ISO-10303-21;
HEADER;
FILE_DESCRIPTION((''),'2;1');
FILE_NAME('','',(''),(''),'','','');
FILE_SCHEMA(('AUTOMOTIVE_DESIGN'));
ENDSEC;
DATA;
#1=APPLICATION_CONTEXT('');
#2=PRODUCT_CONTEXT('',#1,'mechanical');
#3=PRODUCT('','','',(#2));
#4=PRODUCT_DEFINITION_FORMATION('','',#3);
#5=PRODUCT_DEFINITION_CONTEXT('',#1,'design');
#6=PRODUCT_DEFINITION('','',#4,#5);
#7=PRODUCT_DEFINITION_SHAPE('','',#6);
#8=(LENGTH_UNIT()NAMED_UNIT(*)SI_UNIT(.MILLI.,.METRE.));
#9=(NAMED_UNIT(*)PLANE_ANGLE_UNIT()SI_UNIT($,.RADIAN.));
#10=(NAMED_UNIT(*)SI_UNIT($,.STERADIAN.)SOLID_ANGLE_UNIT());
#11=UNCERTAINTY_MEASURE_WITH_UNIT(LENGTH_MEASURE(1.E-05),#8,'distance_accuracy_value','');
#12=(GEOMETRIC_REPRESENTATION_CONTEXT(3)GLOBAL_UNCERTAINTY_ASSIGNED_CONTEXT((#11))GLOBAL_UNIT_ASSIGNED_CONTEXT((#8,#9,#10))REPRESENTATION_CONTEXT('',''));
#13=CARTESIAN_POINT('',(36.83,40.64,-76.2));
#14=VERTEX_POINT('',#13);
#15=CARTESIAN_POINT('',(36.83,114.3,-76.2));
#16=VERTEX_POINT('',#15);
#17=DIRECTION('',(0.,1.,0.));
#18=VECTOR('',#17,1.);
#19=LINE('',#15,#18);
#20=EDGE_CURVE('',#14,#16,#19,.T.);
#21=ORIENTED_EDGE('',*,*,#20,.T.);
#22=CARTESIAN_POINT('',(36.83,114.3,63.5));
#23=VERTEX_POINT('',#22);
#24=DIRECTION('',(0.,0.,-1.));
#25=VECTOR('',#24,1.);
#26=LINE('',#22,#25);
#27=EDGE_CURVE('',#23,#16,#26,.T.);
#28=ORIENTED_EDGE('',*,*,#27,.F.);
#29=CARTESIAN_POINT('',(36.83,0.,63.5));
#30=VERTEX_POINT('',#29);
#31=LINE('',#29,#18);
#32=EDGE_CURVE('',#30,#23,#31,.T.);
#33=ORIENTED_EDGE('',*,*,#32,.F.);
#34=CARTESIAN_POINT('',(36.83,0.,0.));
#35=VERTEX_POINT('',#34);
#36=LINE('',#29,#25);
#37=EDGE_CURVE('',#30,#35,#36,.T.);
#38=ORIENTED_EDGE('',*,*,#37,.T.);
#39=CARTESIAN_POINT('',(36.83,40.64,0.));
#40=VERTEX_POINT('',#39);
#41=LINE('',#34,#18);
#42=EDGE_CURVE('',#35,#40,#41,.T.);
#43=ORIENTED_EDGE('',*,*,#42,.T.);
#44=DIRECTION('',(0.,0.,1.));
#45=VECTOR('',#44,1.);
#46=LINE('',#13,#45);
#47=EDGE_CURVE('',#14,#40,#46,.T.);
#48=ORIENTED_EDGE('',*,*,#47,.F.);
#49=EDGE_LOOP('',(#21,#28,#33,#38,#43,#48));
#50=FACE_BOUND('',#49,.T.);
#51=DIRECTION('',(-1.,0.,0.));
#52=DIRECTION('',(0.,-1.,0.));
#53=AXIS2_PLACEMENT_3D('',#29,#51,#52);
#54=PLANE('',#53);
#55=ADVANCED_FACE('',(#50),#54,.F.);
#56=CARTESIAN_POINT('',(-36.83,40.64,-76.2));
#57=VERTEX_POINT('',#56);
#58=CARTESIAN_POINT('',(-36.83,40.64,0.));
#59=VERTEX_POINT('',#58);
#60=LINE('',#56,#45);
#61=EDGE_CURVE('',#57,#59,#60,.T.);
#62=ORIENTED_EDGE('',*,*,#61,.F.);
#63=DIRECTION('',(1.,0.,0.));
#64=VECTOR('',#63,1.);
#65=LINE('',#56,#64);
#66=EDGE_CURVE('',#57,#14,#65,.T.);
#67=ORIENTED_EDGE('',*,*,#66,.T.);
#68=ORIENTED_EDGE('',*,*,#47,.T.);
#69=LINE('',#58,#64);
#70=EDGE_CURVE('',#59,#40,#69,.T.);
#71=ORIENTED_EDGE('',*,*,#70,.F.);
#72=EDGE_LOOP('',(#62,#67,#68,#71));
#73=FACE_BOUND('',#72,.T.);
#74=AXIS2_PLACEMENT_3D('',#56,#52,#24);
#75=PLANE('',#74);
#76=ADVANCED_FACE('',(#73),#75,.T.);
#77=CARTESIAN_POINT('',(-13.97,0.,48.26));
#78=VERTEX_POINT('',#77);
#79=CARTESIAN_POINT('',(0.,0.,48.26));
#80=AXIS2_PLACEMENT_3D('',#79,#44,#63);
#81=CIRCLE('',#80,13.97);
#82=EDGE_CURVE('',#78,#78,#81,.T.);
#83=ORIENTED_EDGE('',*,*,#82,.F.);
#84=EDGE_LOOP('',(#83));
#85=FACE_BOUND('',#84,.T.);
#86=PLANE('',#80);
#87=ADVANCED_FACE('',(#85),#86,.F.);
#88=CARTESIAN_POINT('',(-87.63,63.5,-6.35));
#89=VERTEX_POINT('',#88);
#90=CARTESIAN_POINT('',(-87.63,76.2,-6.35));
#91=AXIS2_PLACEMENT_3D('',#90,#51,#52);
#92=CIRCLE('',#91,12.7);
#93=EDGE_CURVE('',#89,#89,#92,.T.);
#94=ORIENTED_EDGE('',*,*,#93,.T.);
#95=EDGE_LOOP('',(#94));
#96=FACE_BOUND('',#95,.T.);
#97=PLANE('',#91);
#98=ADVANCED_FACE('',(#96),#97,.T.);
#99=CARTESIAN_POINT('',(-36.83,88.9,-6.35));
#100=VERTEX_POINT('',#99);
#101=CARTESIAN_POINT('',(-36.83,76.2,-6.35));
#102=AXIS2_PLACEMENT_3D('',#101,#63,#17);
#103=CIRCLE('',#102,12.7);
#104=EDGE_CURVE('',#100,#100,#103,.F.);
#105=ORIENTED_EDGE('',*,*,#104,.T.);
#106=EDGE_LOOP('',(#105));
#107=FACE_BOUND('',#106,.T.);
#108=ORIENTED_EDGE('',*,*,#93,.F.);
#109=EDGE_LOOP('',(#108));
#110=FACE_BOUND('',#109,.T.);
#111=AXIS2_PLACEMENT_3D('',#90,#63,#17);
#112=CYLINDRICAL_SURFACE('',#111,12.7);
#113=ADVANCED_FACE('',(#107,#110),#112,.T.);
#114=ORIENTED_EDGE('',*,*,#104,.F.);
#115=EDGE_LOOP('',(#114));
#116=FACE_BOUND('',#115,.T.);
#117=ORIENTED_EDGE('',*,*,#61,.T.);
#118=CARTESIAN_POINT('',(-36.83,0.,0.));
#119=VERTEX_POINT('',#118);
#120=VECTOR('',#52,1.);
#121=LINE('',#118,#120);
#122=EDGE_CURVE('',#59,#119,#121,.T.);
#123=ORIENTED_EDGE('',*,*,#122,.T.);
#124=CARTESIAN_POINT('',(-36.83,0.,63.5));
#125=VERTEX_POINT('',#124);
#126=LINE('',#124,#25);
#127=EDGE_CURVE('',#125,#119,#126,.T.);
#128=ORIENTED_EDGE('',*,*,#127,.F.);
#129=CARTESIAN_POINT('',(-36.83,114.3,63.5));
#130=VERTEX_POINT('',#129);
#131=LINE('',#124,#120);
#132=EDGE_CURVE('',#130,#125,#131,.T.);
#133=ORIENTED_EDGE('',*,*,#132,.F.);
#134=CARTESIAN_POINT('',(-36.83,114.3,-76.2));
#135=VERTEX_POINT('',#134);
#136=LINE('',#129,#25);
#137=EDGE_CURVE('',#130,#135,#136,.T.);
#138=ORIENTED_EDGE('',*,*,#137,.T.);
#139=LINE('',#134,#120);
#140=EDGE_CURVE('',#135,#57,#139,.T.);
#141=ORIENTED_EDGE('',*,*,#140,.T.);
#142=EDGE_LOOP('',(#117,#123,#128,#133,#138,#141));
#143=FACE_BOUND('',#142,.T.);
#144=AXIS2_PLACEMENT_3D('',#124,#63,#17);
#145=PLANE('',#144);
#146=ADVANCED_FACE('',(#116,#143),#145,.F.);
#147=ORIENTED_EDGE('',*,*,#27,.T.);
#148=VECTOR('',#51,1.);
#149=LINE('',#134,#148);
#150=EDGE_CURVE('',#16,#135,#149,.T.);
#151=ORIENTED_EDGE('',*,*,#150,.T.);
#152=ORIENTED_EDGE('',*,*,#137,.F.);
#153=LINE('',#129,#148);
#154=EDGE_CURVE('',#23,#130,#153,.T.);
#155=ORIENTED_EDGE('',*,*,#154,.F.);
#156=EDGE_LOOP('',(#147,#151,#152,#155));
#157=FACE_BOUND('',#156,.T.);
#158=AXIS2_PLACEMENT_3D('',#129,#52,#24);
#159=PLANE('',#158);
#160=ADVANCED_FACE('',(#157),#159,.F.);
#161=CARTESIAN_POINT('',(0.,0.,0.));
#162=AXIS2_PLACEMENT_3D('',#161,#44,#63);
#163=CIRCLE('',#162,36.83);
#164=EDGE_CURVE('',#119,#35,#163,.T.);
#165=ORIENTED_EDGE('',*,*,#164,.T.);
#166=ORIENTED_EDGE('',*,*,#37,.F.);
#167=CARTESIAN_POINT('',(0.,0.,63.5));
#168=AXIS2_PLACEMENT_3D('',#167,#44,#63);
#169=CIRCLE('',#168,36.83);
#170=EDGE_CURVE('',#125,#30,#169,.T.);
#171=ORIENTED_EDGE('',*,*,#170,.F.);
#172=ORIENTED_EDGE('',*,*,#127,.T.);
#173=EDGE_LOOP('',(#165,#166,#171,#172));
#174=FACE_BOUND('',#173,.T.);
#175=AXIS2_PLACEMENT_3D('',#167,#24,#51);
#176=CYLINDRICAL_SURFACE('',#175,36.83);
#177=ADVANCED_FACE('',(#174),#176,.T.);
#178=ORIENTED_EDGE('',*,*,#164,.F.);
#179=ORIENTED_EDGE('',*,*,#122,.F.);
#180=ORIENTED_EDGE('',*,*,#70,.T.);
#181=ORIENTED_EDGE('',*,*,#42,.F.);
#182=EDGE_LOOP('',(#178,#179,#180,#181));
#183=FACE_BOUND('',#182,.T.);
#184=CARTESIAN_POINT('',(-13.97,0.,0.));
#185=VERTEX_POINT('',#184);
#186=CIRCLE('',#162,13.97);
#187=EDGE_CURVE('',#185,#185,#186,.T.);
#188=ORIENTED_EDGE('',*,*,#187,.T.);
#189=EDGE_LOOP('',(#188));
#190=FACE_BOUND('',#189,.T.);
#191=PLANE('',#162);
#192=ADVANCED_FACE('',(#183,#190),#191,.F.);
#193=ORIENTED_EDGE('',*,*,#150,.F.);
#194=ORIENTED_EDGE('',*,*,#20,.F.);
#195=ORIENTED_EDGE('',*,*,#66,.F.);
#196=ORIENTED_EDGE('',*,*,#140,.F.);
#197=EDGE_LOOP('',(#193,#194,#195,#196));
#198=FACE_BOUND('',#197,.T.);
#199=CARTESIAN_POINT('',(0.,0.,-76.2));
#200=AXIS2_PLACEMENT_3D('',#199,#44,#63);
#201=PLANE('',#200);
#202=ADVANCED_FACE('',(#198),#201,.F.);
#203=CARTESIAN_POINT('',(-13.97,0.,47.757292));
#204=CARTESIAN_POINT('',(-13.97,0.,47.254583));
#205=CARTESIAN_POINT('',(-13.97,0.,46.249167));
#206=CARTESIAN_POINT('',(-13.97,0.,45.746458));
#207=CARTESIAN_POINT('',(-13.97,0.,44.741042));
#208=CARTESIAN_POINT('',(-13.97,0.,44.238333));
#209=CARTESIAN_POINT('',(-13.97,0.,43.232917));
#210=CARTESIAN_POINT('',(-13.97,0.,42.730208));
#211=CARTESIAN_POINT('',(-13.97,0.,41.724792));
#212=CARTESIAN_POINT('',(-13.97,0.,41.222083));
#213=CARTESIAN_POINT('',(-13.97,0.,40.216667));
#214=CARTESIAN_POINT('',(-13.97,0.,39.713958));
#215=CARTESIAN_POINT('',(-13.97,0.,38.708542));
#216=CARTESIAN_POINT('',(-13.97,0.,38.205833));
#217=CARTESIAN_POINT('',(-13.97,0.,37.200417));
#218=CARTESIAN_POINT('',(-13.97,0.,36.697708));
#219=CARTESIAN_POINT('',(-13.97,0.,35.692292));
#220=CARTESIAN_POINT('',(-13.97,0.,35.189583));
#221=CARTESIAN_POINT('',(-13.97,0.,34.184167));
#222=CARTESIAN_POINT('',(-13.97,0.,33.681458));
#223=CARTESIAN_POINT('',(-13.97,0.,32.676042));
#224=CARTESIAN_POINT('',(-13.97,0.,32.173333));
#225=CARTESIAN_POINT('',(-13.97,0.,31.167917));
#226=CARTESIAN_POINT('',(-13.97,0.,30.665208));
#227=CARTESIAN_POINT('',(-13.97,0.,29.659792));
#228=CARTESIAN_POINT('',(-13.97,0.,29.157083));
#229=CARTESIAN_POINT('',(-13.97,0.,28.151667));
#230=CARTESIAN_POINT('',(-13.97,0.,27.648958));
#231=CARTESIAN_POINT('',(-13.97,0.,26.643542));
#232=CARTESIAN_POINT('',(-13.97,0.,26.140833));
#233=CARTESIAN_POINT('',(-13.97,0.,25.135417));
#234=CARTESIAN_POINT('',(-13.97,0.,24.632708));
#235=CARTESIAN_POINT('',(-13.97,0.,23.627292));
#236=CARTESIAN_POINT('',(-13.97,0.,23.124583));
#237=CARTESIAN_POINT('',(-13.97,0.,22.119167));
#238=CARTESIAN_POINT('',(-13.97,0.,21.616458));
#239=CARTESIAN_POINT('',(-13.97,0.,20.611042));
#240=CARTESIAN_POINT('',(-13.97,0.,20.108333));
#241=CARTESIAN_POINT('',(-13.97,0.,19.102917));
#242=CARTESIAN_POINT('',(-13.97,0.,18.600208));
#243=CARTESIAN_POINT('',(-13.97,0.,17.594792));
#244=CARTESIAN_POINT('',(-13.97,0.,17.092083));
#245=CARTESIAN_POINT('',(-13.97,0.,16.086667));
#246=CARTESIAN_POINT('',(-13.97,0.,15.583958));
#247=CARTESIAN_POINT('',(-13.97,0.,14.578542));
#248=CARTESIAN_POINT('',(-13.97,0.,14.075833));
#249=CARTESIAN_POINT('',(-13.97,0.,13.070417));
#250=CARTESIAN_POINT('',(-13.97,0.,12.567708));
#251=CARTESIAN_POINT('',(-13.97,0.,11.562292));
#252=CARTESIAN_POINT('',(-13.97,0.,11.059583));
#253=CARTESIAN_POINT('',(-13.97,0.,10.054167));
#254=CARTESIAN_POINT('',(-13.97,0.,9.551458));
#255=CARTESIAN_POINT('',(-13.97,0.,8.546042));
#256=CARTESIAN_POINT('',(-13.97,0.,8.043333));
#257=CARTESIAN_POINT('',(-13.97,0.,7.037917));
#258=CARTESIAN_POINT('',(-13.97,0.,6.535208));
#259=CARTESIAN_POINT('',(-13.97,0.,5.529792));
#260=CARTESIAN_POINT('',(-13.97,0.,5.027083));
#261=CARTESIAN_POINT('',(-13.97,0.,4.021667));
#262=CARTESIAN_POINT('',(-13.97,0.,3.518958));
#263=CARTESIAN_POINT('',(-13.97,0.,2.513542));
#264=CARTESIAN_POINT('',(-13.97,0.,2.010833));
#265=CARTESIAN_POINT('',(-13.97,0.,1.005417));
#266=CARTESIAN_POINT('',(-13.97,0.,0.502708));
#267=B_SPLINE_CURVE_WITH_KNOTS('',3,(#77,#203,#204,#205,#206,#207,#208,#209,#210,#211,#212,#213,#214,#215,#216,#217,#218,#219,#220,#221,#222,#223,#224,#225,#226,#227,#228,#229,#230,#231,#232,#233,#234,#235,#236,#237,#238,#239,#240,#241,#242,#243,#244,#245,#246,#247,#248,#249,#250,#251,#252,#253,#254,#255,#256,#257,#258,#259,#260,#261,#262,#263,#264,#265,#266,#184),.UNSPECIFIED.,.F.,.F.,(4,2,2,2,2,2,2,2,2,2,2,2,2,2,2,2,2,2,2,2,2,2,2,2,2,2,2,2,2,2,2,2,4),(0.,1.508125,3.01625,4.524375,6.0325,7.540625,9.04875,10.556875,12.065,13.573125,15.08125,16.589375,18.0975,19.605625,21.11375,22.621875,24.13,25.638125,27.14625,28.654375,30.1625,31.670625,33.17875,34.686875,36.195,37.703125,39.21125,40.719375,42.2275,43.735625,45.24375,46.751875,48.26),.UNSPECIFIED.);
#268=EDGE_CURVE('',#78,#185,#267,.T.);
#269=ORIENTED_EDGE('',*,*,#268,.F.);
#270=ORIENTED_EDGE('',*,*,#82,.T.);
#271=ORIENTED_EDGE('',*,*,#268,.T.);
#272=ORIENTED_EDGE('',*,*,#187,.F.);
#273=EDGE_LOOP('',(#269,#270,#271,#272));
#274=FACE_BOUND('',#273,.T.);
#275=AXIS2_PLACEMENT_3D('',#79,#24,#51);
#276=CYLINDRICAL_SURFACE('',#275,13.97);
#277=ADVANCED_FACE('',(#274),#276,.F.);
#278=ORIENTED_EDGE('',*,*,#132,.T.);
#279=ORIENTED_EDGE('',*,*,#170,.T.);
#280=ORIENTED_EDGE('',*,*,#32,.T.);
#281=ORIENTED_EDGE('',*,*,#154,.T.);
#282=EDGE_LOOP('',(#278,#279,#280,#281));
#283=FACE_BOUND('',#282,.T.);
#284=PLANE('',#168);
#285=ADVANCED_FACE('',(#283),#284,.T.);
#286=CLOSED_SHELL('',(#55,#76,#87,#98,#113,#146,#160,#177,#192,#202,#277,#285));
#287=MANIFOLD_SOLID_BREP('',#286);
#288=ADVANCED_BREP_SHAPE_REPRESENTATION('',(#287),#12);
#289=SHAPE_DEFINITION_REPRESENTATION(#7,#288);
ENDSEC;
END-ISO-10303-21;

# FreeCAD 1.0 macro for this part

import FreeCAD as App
import Part
import Sketcher
from FreeCAD import Vector
Q = App.Units.Quantity

doc = App.newDocument("Part")
body = doc.addObject("PartDesign::Body", "Body")

sketch1 = body.newObject("Sketcher::SketchObject", "Sketch")
sketch1.AttachmentSupport = (doc.getObject("XY_Plane"), [""])
sketch1.MapMode = "FlatFace"
sketch1.addGeometry(Part.Circle(Vector(0, 0, 0), Vector(0, 0, 1), 37), False)
sketch1.addConstraint(Sketcher.Constraint("Coincident", 0, 3, -1, 1))
sketch1.addConstraint(Sketcher.Constraint("Diameter", 0, Q("2.9 in")))
pad1 = body.newObject("PartDesign::Pad", "Pad")
pad1.Profile = sketch1
pad1.Length = Q("2.5 in")

sketch2 = body.newObject("Sketcher::SketchObject", "Sketch001")
sketch2.AttachmentSupport = (doc.getObject("XY_Plane"), [""])
sketch2.MapMode = "FlatFace"
sketch2.addGeometry(Part.LineSegment(Vector(-37, 114, 0), Vector(-37, 0, 0)), False)
sketch2.addGeometry(Part.LineSegment(Vector(-37, 0, 0), Vector(37, 0, 0)), False)
sketch2.addGeometry(Part.LineSegment(Vector(37, 0, 0), Vector(37, 114, 0)), False)
sketch2.addGeometry(Part.LineSegment(Vector(37, 114, 0), Vector(-37, 114, 0)), False)
sketch2.addConstraint(Sketcher.Constraint("Coincident", 0, 2, 1, 1))
sketch2.addConstraint(Sketcher.Constraint("Coincident", 1, 2, 2, 1))
sketch2.addConstraint(Sketcher.Constraint("Coincident", 2, 2, 3, 1))
sketch2.addConstraint(Sketcher.Constraint("Coincident", 3, 2, 0, 1))
sketch2.addConstraint(Sketcher.Constraint("Vertical", 0))
sketch2.addConstraint(Sketcher.Constraint("Horizontal", 1))
sketch2.addConstraint(Sketcher.Constraint("Vertical", 2))
sketch2.addConstraint(Sketcher.Constraint("Horizontal", 3))
sketch2.addConstraint(Sketcher.Constraint("Symmetric", 0, 2, 1, 2, -1, 1))
sketch2.addConstraint(Sketcher.Constraint("DistanceX", 1, 1, 1, 2, Q("2.9 in")))
sketch2.addConstraint(Sketcher.Constraint("DistanceY", 0, 2, 0, 1, Q("4.5 in")))
pad2 = body.newObject("PartDesign::Pad", "Pad001")
pad2.Profile = sketch2
pad2.Length = Q("2.5 in")

sketch3 = body.newObject("Sketcher::SketchObject", "Sketch002")
sketch3.AttachmentSupport = (doc.getObject("XY_Plane"), [""])
sketch3.MapMode = "FlatFace"
sketch3.addGeometry(Part.LineSegment(Vector(-37, 114, 0), Vector(-37, 41, 0)), False)
sketch3.addGeometry(Part.LineSegment(Vector(-37, 41, 0), Vector(37, 41, 0)), False)
sketch3.addGeometry(Part.LineSegment(Vector(37, 41, 0), Vector(37, 114, 0)), False)
sketch3.addGeometry(Part.LineSegment(Vector(37, 114, 0), Vector(-37, 114, 0)), False)
sketch3.addConstraint(Sketcher.Constraint("Coincident", 0, 2, 1, 1))
sketch3.addConstraint(Sketcher.Constraint("Coincident", 1, 2, 2, 1))
sketch3.addConstraint(Sketcher.Constraint("Coincident", 2, 2, 3, 1))
sketch3.addConstraint(Sketcher.Constraint("Coincident", 3, 2, 0, 1))
sketch3.addConstraint(Sketcher.Constraint("Vertical", 0))
sketch3.addConstraint(Sketcher.Constraint("Horizontal", 1))
sketch3.addConstraint(Sketcher.Constraint("Vertical", 2))
sketch3.addConstraint(Sketcher.Constraint("Horizontal", 3))
sketch3.addConstraint(Sketcher.Constraint("Equal", 3, 0))
sketch3.addConstraint(Sketcher.Constraint("DistanceX", 1, 1, 1, 2, Q("2.9 in")))
sketch3.addConstraint(Sketcher.Constraint("DistanceY", -1, 1, 0, 2, Q("1.6 in")))
sketch3.addConstraint(Sketcher.Constraint("DistanceX", 0, 2, -1, 1, Q("1.45 in")))
pad3 = body.newObject("PartDesign::Pad", "Pad002")
pad3.Profile = sketch3
pad3.Length = Q("3 in")
pad3.Reversed = True

sketch4 = body.newObject("Sketcher::SketchObject", "Sketch003")
sketch4.AttachmentSupport = (doc.getObject("YZ_Plane"), [""])
sketch4.MapMode = "FlatFace"
sketch4.AttachmentOffset = App.Placement(Vector(0, 0, -1.45 * 25.4), App.Rotation())
sketch4.addGeometry(Part.Circle(Vector(76, -6, 0), Vector(0, 0, 1), 13), False)
sketch4.addConstraint(Sketcher.Constraint("Diameter", 0, Q("1 in")))
sketch4.addConstraint(Sketcher.Constraint("DistanceX", -1, 1, 0, 3, Q("3 in")))
sketch4.addConstraint(Sketcher.Constraint("DistanceY", 0, 3, -1, 1, Q("0.25 in")))
pad4 = body.newObject("PartDesign::Pad", "Pad003")
pad4.Profile = sketch4
pad4.Length = Q("2 in")
pad4.Reversed = True

sketch5 = body.newObject("Sketcher::SketchObject", "Sketch004")
sketch5.AttachmentSupport = (doc.getObject("XY_Plane"), [""])
sketch5.MapMode = "FlatFace"
sketch5.addGeometry(Part.Circle(Vector(0, 0, 0), Vector(0, 0, 1), 14), False)
sketch5.addConstraint(Sketcher.Constraint("Coincident", 0, 3, -1, 1))
sketch5.addConstraint(Sketcher.Constraint("Diameter", 0, Q("1.1 in")))
pocket1 = body.newObject("PartDesign::Pocket", "Pocket")
pocket1.Profile = sketch5
pocket1.Length = Q("1.9 in")
pocket1.Reversed = True

doc.recompute()
